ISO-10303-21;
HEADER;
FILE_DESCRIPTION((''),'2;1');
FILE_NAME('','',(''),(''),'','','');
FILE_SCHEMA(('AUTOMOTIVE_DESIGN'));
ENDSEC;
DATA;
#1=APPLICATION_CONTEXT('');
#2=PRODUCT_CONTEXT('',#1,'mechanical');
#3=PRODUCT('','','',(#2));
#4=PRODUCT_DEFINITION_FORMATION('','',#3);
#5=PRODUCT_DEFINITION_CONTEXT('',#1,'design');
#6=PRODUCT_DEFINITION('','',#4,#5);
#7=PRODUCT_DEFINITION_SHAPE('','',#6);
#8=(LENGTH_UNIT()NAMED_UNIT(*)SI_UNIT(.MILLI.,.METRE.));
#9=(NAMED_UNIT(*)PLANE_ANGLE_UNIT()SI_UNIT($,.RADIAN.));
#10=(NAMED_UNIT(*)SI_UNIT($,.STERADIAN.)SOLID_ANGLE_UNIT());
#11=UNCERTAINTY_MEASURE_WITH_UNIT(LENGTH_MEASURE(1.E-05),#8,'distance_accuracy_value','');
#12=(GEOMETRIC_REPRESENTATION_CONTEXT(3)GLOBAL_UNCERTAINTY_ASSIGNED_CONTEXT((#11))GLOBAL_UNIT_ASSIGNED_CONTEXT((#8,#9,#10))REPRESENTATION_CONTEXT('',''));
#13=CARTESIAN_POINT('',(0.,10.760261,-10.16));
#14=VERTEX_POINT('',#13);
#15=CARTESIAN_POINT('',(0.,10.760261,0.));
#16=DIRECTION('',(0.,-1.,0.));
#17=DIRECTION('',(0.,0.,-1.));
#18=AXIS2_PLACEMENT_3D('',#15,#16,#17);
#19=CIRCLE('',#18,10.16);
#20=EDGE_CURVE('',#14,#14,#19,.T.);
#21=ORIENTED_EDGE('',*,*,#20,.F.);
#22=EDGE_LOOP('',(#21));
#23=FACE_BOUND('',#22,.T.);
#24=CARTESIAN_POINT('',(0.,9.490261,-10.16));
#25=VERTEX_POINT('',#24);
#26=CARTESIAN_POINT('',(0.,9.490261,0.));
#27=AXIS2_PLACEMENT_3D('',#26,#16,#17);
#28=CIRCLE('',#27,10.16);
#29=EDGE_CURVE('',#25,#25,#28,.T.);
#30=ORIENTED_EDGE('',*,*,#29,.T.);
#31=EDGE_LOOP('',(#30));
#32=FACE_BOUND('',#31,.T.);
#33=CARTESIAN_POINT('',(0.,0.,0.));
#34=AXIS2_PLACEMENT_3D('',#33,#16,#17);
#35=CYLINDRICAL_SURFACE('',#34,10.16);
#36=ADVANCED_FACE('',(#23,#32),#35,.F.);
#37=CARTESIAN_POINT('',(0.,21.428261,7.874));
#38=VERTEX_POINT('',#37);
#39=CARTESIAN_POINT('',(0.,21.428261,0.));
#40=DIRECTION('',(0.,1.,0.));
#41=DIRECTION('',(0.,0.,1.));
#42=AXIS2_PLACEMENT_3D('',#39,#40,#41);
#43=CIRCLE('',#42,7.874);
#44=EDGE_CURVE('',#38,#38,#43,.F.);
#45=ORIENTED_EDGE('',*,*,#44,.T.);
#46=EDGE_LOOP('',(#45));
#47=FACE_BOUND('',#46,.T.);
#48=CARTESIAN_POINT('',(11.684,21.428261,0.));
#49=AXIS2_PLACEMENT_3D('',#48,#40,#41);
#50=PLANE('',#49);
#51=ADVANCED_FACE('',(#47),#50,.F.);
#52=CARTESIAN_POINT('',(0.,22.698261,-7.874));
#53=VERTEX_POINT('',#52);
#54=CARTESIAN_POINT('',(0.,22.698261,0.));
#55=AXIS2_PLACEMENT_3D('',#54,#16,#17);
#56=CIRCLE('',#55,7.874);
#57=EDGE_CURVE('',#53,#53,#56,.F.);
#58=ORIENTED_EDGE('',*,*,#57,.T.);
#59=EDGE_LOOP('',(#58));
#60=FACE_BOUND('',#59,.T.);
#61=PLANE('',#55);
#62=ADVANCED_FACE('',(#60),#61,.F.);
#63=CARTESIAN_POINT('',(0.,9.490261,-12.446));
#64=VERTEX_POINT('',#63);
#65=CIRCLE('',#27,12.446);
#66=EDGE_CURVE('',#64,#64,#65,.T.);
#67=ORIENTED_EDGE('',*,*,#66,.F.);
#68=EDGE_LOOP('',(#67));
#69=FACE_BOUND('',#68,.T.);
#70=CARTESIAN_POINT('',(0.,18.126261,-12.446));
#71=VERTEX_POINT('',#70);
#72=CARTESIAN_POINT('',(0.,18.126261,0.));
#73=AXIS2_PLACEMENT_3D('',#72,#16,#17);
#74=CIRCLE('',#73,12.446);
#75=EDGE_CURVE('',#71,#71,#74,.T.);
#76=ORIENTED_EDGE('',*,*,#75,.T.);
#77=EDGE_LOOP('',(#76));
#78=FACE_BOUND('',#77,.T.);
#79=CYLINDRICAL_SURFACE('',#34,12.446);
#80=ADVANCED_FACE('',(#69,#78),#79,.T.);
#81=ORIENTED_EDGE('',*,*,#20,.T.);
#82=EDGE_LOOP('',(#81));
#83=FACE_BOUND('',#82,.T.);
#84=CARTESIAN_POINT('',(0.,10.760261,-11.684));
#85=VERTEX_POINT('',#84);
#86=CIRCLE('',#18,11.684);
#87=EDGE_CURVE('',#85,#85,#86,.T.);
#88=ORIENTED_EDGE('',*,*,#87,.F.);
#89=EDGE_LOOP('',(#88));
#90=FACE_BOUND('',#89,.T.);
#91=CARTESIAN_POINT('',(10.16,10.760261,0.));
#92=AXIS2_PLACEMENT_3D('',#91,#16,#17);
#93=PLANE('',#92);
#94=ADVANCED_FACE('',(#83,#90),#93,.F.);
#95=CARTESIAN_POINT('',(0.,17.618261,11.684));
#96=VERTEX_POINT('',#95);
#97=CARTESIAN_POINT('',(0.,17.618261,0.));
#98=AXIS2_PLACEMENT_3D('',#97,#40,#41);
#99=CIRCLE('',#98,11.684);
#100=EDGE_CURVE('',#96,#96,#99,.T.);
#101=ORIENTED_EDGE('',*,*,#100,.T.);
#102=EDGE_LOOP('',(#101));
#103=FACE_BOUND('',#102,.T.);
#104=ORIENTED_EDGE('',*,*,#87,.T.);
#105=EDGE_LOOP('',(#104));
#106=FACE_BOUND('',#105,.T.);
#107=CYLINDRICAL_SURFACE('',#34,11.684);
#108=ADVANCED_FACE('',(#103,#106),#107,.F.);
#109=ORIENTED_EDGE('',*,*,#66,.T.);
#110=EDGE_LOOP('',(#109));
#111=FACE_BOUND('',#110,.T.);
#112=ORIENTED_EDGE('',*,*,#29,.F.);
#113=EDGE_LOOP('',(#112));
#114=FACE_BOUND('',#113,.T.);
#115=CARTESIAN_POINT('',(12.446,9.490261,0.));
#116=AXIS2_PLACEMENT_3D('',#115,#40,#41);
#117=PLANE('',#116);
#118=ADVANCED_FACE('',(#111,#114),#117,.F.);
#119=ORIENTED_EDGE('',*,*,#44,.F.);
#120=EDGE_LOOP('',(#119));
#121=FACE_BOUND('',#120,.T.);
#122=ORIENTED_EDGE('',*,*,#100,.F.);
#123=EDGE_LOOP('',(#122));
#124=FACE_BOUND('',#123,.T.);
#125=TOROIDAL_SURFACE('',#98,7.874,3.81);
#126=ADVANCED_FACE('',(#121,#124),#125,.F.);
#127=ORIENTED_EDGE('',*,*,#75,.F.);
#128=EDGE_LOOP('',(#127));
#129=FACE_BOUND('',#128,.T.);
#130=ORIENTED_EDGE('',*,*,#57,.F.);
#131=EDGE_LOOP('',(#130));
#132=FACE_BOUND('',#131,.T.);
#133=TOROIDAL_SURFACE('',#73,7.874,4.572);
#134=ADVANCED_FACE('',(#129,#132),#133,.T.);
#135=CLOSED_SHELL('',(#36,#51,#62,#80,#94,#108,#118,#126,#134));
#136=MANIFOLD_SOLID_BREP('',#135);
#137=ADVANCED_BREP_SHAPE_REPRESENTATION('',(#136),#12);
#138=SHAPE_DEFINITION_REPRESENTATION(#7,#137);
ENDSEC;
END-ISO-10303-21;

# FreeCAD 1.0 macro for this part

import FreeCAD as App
import Part
import Sketcher

V = App.Vector
Q = App.Units.Quantity


def edges_at(feature, points):
    """Names of the edges that pass closest to the given points."""
    edges = feature.Shape.Edges
    near = lambda p: min(range(len(edges)), key=lambda i: edges[i].distToShape(Part.Vertex(*p))[0])
    return sorted({f"Edge{near(p) + 1}" for p in points})

doc = App.newDocument("Part")
body = doc.addObject("PartDesign::Body", "Body")

sketch1 = body.newObject("Sketcher::SketchObject", "Sketch")
sketch1.AttachmentSupport = (doc.getObject("XY_Plane"), [""])
sketch1.MapMode = "FlatFace"
sketch1.addGeometry(Part.LineSegment(V(12.4, 22.7, 0), V(0, 22.7, 0)), False)
sketch1.addGeometry(Part.LineSegment(V(0, 22.7, 0), V(0, 21.4, 0)), False)
sketch1.addGeometry(Part.LineSegment(V(0, 21.4, 0), V(11.7, 21.4, 0)), False)
sketch1.addGeometry(Part.LineSegment(V(11.7, 21.4, 0), V(11.7, 10.8, 0)), False)
sketch1.addGeometry(Part.LineSegment(V(11.7, 10.8, 0), V(10.2, 10.8, 0)), False)
sketch1.addGeometry(Part.LineSegment(V(10.2, 10.8, 0), V(10.2, 9.5, 0)), False)
sketch1.addGeometry(Part.LineSegment(V(10.2, 9.5, 0), V(12.4, 9.5, 0)), False)
sketch1.addGeometry(Part.LineSegment(V(12.4, 9.5, 0), V(12.4, 22.7, 0)), False)
sketch1.addConstraint(Sketcher.Constraint("Coincident", 0, 2, 1, 1))
sketch1.addConstraint(Sketcher.Constraint("Coincident", 1, 2, 2, 1))
sketch1.addConstraint(Sketcher.Constraint("Coincident", 2, 2, 3, 1))
sketch1.addConstraint(Sketcher.Constraint("Coincident", 3, 2, 4, 1))
sketch1.addConstraint(Sketcher.Constraint("Coincident", 4, 2, 5, 1))
sketch1.addConstraint(Sketcher.Constraint("Coincident", 5, 2, 6, 1))
sketch1.addConstraint(Sketcher.Constraint("Coincident", 6, 2, 7, 1))
sketch1.addConstraint(Sketcher.Constraint("Coincident", 7, 2, 0, 1))
sketch1.addConstraint(Sketcher.Constraint("Horizontal", 0))
sketch1.addConstraint(Sketcher.Constraint("Vertical", 1))
sketch1.addConstraint(Sketcher.Constraint("Horizontal", 2))
sketch1.addConstraint(Sketcher.Constraint("Vertical", 3))
sketch1.addConstraint(Sketcher.Constraint("Horizontal", 4))
sketch1.addConstraint(Sketcher.Constraint("Vertical", 5))
sketch1.addConstraint(Sketcher.Constraint("Horizontal", 6))
sketch1.addConstraint(Sketcher.Constraint("Vertical", 7))
sketch1.addConstraint(Sketcher.Constraint("PointOnObject", 0, 2, -2))
sketch1.addConstraint(Sketcher.Constraint("Equal", 1, 5))
sketch1.addConstraint(Sketcher.Constraint("DistanceX", 0, 2, 0, 1, Q("0.49 in")))
sketch1.addConstraint(Sketcher.Constraint("DistanceX", 2, 1, 2, 2, Q("0.46 in")))
sketch1.addConstraint(Sketcher.Constraint("DistanceX", 4, 2, 4, 1, Q("0.06 in")))
sketch1.addConstraint(Sketcher.Constraint("DistanceY", 1, 2, 1, 1, Q("0.05 in")))
sketch1.addConstraint(Sketcher.Constraint("DistanceY", 3, 2, 3, 1, Q("0.42 in")))
sketch1.addConstraint(Sketcher.Constraint("DistanceY", -1, 1, 0, 2, Q("22.698261 mm")))
revolution = body.newObject("PartDesign::Revolution", "Revolution")
revolution.Profile = sketch1
revolution.ReferenceAxis = (sketch1, ["V_Axis"])
revolution.Angle = 360
doc.recompute()

fillet = body.newObject("PartDesign::Fillet", "Fillet")
fillet.Base = (revolution, edges_at(revolution, [(0, 21.428, 11.684)]))
fillet.Radius = Q("0.15 in")
doc.recompute()

fillet2 = body.newObject("PartDesign::Fillet", "Fillet001")
fillet2.Base = (fillet, edges_at(fillet, [(0, 22.698, 12.446)]))
fillet2.Radius = Q("0.18 in")

doc.recompute()
